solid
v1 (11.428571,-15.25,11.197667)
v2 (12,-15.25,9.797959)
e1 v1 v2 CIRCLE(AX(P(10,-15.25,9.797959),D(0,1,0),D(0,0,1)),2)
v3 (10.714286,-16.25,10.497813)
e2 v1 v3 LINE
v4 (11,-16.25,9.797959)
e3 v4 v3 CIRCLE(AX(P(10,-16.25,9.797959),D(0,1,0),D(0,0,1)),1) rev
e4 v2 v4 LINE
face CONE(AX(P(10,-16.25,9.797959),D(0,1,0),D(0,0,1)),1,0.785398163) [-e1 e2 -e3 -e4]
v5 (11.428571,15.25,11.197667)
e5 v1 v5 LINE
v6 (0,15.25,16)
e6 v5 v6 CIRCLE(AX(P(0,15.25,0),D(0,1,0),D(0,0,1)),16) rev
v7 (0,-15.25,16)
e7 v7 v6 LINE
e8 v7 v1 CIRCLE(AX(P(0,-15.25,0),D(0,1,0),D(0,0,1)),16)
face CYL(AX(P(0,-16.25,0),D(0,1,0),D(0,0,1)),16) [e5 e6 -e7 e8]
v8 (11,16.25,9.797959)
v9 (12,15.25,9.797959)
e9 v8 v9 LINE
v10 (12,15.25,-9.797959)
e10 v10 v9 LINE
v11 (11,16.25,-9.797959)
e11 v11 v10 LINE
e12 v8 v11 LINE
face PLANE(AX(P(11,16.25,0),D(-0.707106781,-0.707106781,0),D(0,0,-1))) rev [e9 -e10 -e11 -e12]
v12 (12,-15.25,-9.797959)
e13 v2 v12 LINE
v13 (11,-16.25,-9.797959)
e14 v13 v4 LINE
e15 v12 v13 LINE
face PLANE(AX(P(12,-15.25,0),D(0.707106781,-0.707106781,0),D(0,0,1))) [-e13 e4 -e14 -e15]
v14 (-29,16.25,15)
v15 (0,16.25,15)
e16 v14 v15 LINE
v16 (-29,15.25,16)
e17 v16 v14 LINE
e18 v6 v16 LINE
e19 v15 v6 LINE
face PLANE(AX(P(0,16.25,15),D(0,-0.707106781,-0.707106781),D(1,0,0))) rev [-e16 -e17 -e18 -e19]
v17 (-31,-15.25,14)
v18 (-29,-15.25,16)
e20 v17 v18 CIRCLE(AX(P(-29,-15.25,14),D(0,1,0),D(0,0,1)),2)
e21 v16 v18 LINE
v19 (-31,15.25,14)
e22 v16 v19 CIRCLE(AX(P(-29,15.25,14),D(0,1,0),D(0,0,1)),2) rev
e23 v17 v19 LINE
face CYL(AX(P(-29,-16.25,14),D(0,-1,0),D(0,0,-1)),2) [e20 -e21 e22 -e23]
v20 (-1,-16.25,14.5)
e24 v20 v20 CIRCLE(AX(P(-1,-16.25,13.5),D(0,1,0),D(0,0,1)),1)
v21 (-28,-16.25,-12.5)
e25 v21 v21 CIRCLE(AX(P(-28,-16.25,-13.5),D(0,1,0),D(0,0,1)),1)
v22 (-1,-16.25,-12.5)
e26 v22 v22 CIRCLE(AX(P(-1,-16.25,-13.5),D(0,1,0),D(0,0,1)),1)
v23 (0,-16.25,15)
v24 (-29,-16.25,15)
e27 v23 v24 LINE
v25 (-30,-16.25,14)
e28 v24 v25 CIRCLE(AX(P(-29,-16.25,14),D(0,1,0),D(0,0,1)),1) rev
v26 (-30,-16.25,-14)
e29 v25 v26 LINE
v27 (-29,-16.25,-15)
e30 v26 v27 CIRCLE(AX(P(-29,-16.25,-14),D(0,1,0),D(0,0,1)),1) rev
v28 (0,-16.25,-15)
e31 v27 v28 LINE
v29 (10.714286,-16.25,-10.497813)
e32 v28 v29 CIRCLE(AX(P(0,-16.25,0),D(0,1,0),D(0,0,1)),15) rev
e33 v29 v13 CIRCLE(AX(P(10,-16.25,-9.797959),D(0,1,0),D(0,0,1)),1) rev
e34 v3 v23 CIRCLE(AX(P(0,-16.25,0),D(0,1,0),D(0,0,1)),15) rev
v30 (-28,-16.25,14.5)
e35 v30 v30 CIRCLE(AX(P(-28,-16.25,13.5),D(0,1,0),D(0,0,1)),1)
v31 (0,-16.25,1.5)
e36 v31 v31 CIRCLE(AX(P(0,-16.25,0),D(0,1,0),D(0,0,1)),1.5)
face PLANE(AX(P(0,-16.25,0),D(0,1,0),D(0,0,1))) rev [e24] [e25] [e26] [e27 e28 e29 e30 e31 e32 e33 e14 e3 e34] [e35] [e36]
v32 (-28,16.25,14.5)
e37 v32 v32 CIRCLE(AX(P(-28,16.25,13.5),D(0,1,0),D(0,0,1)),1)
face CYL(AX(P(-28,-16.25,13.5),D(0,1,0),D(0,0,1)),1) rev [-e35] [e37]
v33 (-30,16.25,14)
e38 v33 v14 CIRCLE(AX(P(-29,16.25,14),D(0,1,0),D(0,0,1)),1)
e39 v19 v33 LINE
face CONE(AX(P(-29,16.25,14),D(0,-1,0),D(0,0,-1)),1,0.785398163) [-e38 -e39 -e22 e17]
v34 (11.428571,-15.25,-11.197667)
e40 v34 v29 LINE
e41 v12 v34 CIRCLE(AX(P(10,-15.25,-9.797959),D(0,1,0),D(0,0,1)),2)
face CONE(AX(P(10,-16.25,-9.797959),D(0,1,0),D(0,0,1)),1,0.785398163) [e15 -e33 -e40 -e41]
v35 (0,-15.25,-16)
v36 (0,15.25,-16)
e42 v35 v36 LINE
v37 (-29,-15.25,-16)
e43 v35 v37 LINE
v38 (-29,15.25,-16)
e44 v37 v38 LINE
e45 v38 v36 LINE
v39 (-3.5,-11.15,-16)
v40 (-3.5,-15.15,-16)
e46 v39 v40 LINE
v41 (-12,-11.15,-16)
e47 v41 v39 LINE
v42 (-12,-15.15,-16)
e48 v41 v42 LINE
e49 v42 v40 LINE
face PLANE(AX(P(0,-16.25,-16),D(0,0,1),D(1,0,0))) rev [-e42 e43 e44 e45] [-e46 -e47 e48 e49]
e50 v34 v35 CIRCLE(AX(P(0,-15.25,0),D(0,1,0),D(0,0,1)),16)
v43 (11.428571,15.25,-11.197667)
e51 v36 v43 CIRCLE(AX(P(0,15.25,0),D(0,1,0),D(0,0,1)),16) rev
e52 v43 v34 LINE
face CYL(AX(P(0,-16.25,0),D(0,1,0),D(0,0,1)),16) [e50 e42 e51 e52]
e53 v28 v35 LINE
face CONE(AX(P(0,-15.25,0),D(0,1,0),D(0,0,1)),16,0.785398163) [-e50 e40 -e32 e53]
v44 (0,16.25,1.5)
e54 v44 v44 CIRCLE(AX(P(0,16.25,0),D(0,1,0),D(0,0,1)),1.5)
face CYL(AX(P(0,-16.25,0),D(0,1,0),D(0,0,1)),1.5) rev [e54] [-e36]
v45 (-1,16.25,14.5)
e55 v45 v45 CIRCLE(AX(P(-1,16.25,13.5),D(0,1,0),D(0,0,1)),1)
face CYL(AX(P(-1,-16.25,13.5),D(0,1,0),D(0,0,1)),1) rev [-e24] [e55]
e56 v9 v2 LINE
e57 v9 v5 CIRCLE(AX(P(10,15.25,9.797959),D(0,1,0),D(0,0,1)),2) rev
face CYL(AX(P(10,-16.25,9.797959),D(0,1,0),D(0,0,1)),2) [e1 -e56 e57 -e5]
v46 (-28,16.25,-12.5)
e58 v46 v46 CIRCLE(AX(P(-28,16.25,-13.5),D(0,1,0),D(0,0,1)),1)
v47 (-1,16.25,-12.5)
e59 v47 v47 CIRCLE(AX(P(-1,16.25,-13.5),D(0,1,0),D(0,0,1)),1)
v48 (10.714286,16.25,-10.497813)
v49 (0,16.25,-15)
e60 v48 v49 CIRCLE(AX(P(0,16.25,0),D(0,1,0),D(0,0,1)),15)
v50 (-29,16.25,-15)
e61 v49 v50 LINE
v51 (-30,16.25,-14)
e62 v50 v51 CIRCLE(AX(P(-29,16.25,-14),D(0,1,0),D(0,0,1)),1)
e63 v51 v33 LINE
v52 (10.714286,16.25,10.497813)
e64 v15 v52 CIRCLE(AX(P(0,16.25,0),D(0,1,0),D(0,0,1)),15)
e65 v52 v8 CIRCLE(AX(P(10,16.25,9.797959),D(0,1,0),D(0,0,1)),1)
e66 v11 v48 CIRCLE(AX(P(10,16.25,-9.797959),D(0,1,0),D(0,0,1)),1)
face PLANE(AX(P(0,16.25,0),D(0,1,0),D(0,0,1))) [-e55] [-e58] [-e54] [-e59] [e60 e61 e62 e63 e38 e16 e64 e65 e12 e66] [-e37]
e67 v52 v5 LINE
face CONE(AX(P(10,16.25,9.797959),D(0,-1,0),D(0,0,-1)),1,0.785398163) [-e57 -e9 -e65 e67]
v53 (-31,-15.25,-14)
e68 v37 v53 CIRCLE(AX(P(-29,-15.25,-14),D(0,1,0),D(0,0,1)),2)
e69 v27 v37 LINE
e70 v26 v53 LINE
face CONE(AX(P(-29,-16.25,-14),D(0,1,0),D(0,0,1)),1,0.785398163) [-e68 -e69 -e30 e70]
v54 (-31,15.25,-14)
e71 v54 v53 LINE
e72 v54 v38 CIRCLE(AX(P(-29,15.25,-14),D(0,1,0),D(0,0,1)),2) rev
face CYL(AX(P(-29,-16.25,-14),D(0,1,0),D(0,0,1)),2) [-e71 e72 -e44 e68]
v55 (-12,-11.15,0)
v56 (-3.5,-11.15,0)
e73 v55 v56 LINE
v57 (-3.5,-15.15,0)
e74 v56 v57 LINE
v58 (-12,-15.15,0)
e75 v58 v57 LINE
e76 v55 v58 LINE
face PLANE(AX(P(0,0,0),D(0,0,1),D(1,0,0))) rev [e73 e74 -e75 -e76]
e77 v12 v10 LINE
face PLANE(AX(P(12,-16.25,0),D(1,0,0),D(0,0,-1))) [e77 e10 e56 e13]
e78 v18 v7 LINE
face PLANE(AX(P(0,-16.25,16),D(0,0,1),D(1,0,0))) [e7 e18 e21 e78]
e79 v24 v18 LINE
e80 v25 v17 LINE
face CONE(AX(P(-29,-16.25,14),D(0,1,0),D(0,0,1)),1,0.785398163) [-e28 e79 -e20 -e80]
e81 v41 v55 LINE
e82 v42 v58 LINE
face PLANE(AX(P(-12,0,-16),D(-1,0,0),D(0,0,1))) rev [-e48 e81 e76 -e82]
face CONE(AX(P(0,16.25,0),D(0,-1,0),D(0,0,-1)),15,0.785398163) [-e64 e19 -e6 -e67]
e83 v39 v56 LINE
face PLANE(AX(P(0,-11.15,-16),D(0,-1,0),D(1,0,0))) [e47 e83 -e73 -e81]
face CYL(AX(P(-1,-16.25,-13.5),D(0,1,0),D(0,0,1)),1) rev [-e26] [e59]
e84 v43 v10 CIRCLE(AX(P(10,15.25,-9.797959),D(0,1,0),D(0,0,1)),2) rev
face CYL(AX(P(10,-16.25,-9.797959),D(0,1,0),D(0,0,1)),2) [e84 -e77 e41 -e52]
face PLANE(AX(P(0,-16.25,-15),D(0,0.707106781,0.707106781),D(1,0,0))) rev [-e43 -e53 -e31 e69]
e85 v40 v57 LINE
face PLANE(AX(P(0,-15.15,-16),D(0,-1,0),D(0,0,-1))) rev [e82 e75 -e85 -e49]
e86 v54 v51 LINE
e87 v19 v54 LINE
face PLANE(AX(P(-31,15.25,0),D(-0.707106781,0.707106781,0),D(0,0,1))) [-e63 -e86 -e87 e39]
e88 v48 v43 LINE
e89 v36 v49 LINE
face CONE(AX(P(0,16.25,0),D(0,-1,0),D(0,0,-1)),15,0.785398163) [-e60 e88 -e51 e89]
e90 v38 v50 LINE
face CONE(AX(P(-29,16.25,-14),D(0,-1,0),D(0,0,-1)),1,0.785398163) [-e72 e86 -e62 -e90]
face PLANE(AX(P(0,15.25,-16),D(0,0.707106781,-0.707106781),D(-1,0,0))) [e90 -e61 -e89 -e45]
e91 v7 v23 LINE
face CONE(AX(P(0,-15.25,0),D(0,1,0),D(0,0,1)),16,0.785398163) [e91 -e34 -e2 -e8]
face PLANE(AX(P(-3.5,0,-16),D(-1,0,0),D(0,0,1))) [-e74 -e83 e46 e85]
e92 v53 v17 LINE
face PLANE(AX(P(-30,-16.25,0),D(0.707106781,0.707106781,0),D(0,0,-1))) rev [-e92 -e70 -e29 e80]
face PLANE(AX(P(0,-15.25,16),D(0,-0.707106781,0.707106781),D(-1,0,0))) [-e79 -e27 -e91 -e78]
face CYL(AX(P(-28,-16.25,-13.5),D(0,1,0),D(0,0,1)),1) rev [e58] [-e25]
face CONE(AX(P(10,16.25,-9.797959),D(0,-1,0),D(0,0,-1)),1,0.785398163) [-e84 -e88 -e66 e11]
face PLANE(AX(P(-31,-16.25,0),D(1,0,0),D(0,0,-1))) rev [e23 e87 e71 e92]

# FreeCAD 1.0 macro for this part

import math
import FreeCAD as App
import Part
import Sketcher

V = App.Vector


def edges_at(feature, points):
    """Names of the edges that pass closest to the given points."""
    edges = feature.Shape.Edges
    near = lambda p: min(range(len(edges)), key=lambda i: edges[i].distToShape(Part.Vertex(*p))[0])
    return sorted({f"Edge{near(p) + 1}" for p in points})


def add_polygon(sketch, points):
    """Adds a closed chain of lines whose ends are joined by coincident constraints."""
    first, n = sketch.GeometryCount, len(points)
    for a, b in zip(points, points[1:] + points[:1]):
        sketch.addGeometry(Part.LineSegment(App.Vector(*a, 0), App.Vector(*b, 0)), False)
    for i in range(n):
        sketch.addConstraint(Sketcher.Constraint("Coincident", first + i, 2, first + (i + 1) % n, 1))

doc = App.newDocument("Part")
params = doc.addObject("Spreadsheet::Sheet", "Params")
for row, (alias, value) in enumerate([
    ("sketch1_diameter", "3 mm"),
    ("sketch1_radius", "16 mm"),
    ("sketch1_width", "31 mm"),
    ("pad1_length", "16.25 mm"),
    ("pad1_length2", "16.25 mm"),
    ("sketch2_diameter", "2 mm"),
    ("fillet_radius", "2 mm"),
    ("chamfer_size", "1 mm"),
    ("sketch3_height", "4 mm"),
    ("sketch3_width", "8.5 mm"),
], start=1):
    params.set(f"A{row}", alias)
    params.set(f"B{row}", "=" + value)
    params.setAlias(f"B{row}", alias)

body = doc.addObject("PartDesign::Body", "Body")

# Sketch on XZ plane
sketch1 = body.newObject("Sketcher::SketchObject", "Sketch")
sketch1.AttachmentSupport = (doc.getObject("XZ_Plane"), [""])
sketch1.MapMode = "FlatFace"
sketch1.addGeometry(Part.LineSegment(V(-31, -16, 0), V(-31, 16, 0)), False)
sketch1.addGeometry(Part.LineSegment(V(-31, 16, 0), V(0, 16, 0)), False)
sketch1.addGeometry(Part.ArcOfCircle(Part.Circle(V(0, 0, 0), V(0, 0, 1), 16), math.radians(41.409622), math.radians(90)), False)
sketch1.addGeometry(Part.LineSegment(V(12, 10.583005, 0), V(12, -10.583005, 0)), False)
sketch1.addGeometry(Part.ArcOfCircle(Part.Circle(V(0, 0, 0), V(0, 0, 1), 16), math.radians(-90), math.radians(-41.409622)), False)
sketch1.addGeometry(Part.LineSegment(V(0, -16, 0), V(-31, -16, 0)), False)
sketch1.addGeometry(Part.Circle(V(0, 0, 0), V(0, 0, 1), 1.5), False)
sketch1.addConstraint(Sketcher.Constraint("Coincident", 0, 2, 1, 1))
sketch1.addConstraint(Sketcher.Constraint("Tangent", 1, 2, 2, 2))
sketch1.addConstraint(Sketcher.Constraint("Coincident", 2, 1, 3, 1))
sketch1.addConstraint(Sketcher.Constraint("Coincident", 3, 2, 4, 2))
sketch1.addConstraint(Sketcher.Constraint("Tangent", 4, 1, 5, 1))
sketch1.addConstraint(Sketcher.Constraint("Coincident", 5, 2, 0, 1))
sketch1.addConstraint(Sketcher.Constraint("Vertical", 0))
sketch1.addConstraint(Sketcher.Constraint("Horizontal", 1))
sketch1.addConstraint(Sketcher.Constraint("Vertical", 3))
sketch1.addConstraint(Sketcher.Constraint("Horizontal", 5))
sketch1.addConstraint(Sketcher.Constraint("Coincident", 2, 3, -1, 1))
sketch1.addConstraint(Sketcher.Constraint("Coincident", 4, 3, -1, 1))
sketch1.addConstraint(Sketcher.Constraint("Coincident", 6, 3, -1, 1))
sketch1.addConstraint(Sketcher.Constraint("Equal", 2, 4))
sketch1.addConstraint(Sketcher.Constraint("Diameter", 6, 3.0))
sketch1.addConstraint(Sketcher.Constraint("Radius", 2, 16.0))
sketch1.addConstraint(Sketcher.Constraint("DistanceX", 1, 1, 1, 2, 31.0))
sketch1.addConstraint(Sketcher.Constraint("DistanceX", -1, 1, 2, 1, 12.0))
sketch1.setExpression("Constraints[14]", "Params.sketch1_diameter")
sketch1.setExpression("Constraints[15]", "Params.sketch1_radius")
sketch1.setExpression("Constraints[16]", "Params.sketch1_width")
pad1 = body.newObject("PartDesign::Pad", "Pad")
pad1.Profile = sketch1
pad1.Type = "TwoLengths"
pad1.setExpression("Length", "Params.pad1_length")
pad1.setExpression("Length2", "Params.pad1_length2")
pad1.Reversed = True

# Sketch on XZ plane
sketch2 = body.newObject("Sketcher::SketchObject", "Sketch001")
sketch2.AttachmentSupport = (doc.getObject("XZ_Plane"), [""])
sketch2.MapMode = "FlatFace"
sketch2.addGeometry(Part.Circle(V(-28, -13.5, 0), V(0, 0, 1), 1), False)
sketch2.addGeometry(Part.Circle(V(-1, -13.5, 0), V(0, 0, 1), 1), False)
sketch2.addGeometry(Part.Circle(V(-1, 13.5, 0), V(0, 0, 1), 1), False)
sketch2.addGeometry(Part.Circle(V(-28, 13.5, 0), V(0, 0, 1), 1), False)
sketch2.addConstraint(Sketcher.Constraint("Equal", 0, 1))
sketch2.addConstraint(Sketcher.Constraint("Equal", 1, 2))
sketch2.addConstraint(Sketcher.Constraint("Equal", 2, 3))
sketch2.addConstraint(Sketcher.Constraint("Symmetric", 1, 3, 2, 3, -1))
sketch2.addConstraint(Sketcher.Constraint("Symmetric", 0, 3, 3, 3, -1))
sketch2.addConstraint(Sketcher.Constraint("Horizontal", 0, 3, 1, 3))
sketch2.addConstraint(Sketcher.Constraint("Diameter", 0, 2.0))
sketch2.addConstraint(Sketcher.Constraint("DistanceX", 0, 3, -1, 1, 28.0))
sketch2.addConstraint(Sketcher.Constraint("DistanceX", 1, 3, -1, 1, 1.0))
sketch2.addConstraint(Sketcher.Constraint("DistanceY", 1, 3, 2, 3, 27.0))
sketch2.setExpression("Constraints[6]", "Params.sketch2_diameter")
pocket1 = body.newObject("PartDesign::Pocket", "Pocket")
pocket1.Profile = sketch2
pocket1.Type = "ThroughAll"
pocket1.Midplane = True
doc.recompute()

fillet = body.newObject("PartDesign::Fillet", "Fillet")
fillet.Base = (pocket1, edges_at(pocket1, [
    (12, 0, -10.583),
    (12, 0, 10.583),
    (-31, 0, 16),
    (-31, 0, -16),
]))
fillet.setExpression("Radius", "Params.fillet_radius")
doc.recompute()

chamfer = body.newObject("PartDesign::Chamfer", "Chamfer")
chamfer.Base = (fillet, edges_at(fillet, [
    (6.198, 16.25, 14.751),
    (6.198, -16.25, 14.751),
    (12, 16.25, 0),
    (12, -16.25, 0),
    (6.198, 16.25, -14.751),
    (-14.5, 16.25, -16),
    (-31, 16.25, 0),
    (-14.5, 16.25, 16),
    (-30.414, 16.25, 15.414),
    (-30.414, 16.25, -15.414),
    (11.852, 16.25, 10.554),
    (11.852, 16.25, -10.554),
    (6.198, -16.25, -14.751),
    (-14.5, -16.25, 16),
    (-31, -16.25, 0),
    (-14.5, -16.25, -16),
    (-30.414, -16.25, 15.414),
    (-30.414, -16.25, -15.414),
    (11.852, -16.25, 10.554),
    (11.852, -16.25, -10.554),
]))
chamfer.setExpression("Size", "Params.chamfer_size")

# Sketch on XY plane
sketch3 = body.newObject("Sketcher::SketchObject", "Sketch002")
sketch3.AttachmentSupport = (doc.getObject("XY_Plane"), [""])
sketch3.MapMode = "FlatFace"
add_polygon(sketch3, [(-12, -11.15), (-12, -15.15), (-3.5, -15.15), (-3.5, -11.15)])  # lines 0-3
sketch3.addConstraint(Sketcher.Constraint("Vertical", 0))
sketch3.addConstraint(Sketcher.Constraint("Horizontal", 1))
sketch3.addConstraint(Sketcher.Constraint("Vertical", 2))
sketch3.addConstraint(Sketcher.Constraint("Horizontal", 3))
sketch3.addConstraint(Sketcher.Constraint("DistanceY", 0, 2, 0, 1, 4.0))
sketch3.addConstraint(Sketcher.Constraint("DistanceX", 1, 1, 1, 2, 8.5))
sketch3.addConstraint(Sketcher.Constraint("DistanceX", 0, 2, -1, 1, 12.0))
sketch3.addConstraint(Sketcher.Constraint("DistanceY", 0, 2, -1, 1, 15.15))
sketch3.setExpression("Constraints[8]", "Params.sketch3_height")
sketch3.setExpression("Constraints[9]", "Params.sketch3_width")
pocket2 = body.newObject("PartDesign::Pocket", "Pocket001")
pocket2.Profile = sketch3
pocket2.Type = "ThroughAll"

doc.recompute()
